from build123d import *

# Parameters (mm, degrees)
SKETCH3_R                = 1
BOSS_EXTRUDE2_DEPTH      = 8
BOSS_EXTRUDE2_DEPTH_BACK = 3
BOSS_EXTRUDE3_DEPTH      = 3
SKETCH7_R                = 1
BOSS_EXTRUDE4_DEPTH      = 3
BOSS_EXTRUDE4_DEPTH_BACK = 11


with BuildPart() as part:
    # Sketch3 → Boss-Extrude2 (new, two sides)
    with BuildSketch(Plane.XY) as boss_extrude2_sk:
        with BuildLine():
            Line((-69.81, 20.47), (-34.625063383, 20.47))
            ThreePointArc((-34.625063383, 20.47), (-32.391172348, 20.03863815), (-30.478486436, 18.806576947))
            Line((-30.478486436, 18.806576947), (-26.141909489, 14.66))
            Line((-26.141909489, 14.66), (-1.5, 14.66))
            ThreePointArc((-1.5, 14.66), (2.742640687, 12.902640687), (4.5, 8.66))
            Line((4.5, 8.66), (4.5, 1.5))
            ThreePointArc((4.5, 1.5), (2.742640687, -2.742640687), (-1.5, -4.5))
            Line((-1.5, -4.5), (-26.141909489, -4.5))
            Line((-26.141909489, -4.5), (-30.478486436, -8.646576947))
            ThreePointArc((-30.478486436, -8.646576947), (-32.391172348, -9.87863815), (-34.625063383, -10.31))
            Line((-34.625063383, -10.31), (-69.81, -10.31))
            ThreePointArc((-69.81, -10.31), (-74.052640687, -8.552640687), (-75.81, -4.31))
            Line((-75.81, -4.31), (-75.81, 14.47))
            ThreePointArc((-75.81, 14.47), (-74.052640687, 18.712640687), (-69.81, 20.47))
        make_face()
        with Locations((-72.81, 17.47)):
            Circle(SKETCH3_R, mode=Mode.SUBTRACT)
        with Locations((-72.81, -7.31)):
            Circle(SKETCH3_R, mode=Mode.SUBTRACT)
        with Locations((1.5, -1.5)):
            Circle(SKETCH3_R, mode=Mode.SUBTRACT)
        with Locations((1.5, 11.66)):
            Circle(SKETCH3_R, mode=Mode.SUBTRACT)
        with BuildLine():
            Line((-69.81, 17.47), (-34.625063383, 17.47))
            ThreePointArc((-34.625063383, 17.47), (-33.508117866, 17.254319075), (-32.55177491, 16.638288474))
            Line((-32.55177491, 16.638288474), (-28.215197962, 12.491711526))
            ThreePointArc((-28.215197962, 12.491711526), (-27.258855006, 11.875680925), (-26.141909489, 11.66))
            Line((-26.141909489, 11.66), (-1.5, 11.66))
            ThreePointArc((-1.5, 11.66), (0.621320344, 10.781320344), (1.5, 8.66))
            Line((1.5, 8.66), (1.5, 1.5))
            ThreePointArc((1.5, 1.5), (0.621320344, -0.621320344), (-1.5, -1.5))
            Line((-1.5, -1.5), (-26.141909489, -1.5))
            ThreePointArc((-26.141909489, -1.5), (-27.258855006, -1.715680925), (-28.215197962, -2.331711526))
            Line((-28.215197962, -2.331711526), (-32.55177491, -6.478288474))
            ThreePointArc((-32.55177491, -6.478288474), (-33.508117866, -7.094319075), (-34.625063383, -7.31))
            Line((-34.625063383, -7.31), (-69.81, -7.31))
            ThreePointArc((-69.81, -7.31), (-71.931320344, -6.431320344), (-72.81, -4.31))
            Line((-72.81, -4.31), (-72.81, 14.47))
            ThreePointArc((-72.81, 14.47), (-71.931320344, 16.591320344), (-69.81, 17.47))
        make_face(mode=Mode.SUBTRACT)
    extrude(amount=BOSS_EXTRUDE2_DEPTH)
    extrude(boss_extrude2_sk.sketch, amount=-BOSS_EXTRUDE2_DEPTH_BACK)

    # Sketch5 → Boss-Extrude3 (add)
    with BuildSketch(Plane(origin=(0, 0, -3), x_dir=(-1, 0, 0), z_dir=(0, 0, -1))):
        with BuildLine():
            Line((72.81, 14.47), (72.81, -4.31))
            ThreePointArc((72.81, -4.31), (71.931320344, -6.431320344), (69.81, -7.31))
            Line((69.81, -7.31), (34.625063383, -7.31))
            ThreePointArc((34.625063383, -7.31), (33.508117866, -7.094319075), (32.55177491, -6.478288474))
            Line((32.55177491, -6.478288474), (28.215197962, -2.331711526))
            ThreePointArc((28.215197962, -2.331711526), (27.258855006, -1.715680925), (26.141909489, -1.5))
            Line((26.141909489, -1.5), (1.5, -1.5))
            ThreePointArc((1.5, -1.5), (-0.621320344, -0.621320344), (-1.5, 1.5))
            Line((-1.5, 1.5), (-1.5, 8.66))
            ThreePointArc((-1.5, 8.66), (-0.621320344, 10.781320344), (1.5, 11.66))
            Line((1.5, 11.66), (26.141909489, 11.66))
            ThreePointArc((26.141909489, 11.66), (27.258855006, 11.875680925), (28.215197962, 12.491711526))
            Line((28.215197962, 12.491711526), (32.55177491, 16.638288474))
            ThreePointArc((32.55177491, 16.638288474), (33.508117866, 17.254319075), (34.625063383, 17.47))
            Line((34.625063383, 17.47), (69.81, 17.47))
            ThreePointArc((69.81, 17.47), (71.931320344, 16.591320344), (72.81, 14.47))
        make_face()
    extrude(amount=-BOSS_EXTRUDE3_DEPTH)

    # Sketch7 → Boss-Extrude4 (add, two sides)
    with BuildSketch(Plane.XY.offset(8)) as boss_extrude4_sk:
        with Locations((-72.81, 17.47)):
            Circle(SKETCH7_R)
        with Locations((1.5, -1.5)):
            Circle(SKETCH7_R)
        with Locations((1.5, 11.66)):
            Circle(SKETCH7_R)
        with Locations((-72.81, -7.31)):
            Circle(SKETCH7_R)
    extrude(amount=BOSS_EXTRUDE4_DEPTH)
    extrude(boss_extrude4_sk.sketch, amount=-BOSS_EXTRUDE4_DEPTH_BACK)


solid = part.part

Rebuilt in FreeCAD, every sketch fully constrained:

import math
import FreeCAD as App
import Part
import Sketcher
from FreeCAD import Vector

doc = App.newDocument("Part")
body = doc.addObject("PartDesign::Body", "Body")

sketch1 = doc.addObject("Sketcher::SketchObject", "Sketch")
body.addObject(sketch1)
sketch1.AttachmentSupport = (doc.XY_Plane, [""])
sketch1.MapMode = "FlatFace"
sketch1.addGeometry(Part.LineSegment(Vector(-34.6, 20.5, 0), Vector(-69.8, 20.5, 0)), False)
sketch1.addGeometry(Part.ArcOfCircle(Part.Circle(Vector(-69.8, 14.5, 0), Vector(0, 0, 1), 6), math.radians(90), math.radians(180)), False)
sketch1.addGeometry(Part.LineSegment(Vector(-75.8, 14.5, 0), Vector(-75.8, -4.3, 0)), False)
sketch1.addGeometry(Part.ArcOfCircle(Part.Circle(Vector(-69.8, -4.3, 0), Vector(0, 0, 1), 6), math.radians(180), math.radians(270)), False)
sketch1.addGeometry(Part.LineSegment(Vector(-69.8, -10.3, 0), Vector(-34.6, -10.3, 0)), False)
sketch1.addGeometry(Part.ArcOfCircle(Part.Circle(Vector(-34.6, -4.3, 0), Vector(0, 0, 1), 6), math.radians(-90), math.radians(-46)), False)
sketch1.addGeometry(Part.LineSegment(Vector(-30.5, -8.6, 0), Vector(-26.1, -4.5, 0)), False)
sketch1.addGeometry(Part.LineSegment(Vector(-26.1, -4.5, 0), Vector(-1.5, -4.5, 0)), False)
sketch1.addGeometry(Part.ArcOfCircle(Part.Circle(Vector(-1.5, 1.5, 0), Vector(0, 0, 1), 6), math.radians(-90), math.radians(0)), False)
sketch1.addGeometry(Part.LineSegment(Vector(4.5, 1.5, 0), Vector(4.5, 8.7, 0)), False)
sketch1.addGeometry(Part.ArcOfCircle(Part.Circle(Vector(-1.5, 8.7, 0), Vector(0, 0, 1), 6), math.radians(0), math.radians(90)), False)
sketch1.addGeometry(Part.LineSegment(Vector(-1.5, 14.7, 0), Vector(-26.1, 14.7, 0)), False)
sketch1.addGeometry(Part.LineSegment(Vector(-26.1, 14.7, 0), Vector(-30.5, 18.8, 0)), False)
sketch1.addGeometry(Part.ArcOfCircle(Part.Circle(Vector(-34.6, 14.5, 0), Vector(0, 0, 1), 6), math.radians(46), math.radians(90)), False)
sketch1.addGeometry(Part.Circle(Vector(1.5, -1.5, 0), Vector(0, 0, 1), 1), False)
sketch1.addGeometry(Part.Circle(Vector(-72.8, -7.3, 0), Vector(0, 0, 1), 1), False)
sketch1.addGeometry(Part.Circle(Vector(1.5, 11.7, 0), Vector(0, 0, 1), 1), False)
sketch1.addGeometry(Part.LineSegment(Vector(-69.8, 17.5, 0), Vector(-34.6, 17.5, 0)), False)
sketch1.addGeometry(Part.ArcOfCircle(Part.Circle(Vector(-34.6, 14.5, 0), Vector(0, 0, 1), 3), math.radians(46), math.radians(90)), False)
sketch1.addGeometry(Part.LineSegment(Vector(-32.6, 16.6, 0), Vector(-28.2, 12.5, 0)), False)
sketch1.addGeometry(Part.ArcOfCircle(Part.Circle(Vector(-26.1, 14.7, 0), Vector(0, 0, 1), 3), math.radians(-134), math.radians(-90)), False)
sketch1.addGeometry(Part.LineSegment(Vector(-26.1, 11.7, 0), Vector(-1.5, 11.7, 0)), False)
sketch1.addGeometry(Part.ArcOfCircle(Part.Circle(Vector(-1.5, 8.7, 0), Vector(0, 0, 1), 3), math.radians(0), math.radians(90)), False)
sketch1.addGeometry(Part.LineSegment(Vector(1.5, 8.7, 0), Vector(1.5, 1.5, 0)), False)
sketch1.addGeometry(Part.ArcOfCircle(Part.Circle(Vector(-1.5, 1.5, 0), Vector(0, 0, 1), 3), math.radians(-90), math.radians(0)), False)
sketch1.addGeometry(Part.LineSegment(Vector(-1.5, -1.5, 0), Vector(-26.1, -1.5, 0)), False)
sketch1.addGeometry(Part.ArcOfCircle(Part.Circle(Vector(-26.1, -4.5, 0), Vector(0, 0, 1), 3), math.radians(90), math.radians(134)), False)
sketch1.addGeometry(Part.LineSegment(Vector(-28.2, -2.3, 0), Vector(-32.6, -6.5, 0)), False)
sketch1.addGeometry(Part.ArcOfCircle(Part.Circle(Vector(-34.6, -4.3, 0), Vector(0, 0, 1), 3), math.radians(-90), math.radians(-46)), False)
sketch1.addGeometry(Part.LineSegment(Vector(-34.6, -7.3, 0), Vector(-69.8, -7.3, 0)), False)
sketch1.addGeometry(Part.ArcOfCircle(Part.Circle(Vector(-69.8, -4.3, 0), Vector(0, 0, 1), 3), math.radians(180), math.radians(270)), False)
sketch1.addGeometry(Part.LineSegment(Vector(-72.8, -4.3, 0), Vector(-72.8, 14.5, 0)), False)
sketch1.addGeometry(Part.ArcOfCircle(Part.Circle(Vector(-69.8, 14.5, 0), Vector(0, 0, 1), 3), math.radians(90), math.radians(180)), False)
sketch1.addGeometry(Part.Circle(Vector(-72.8, 17.5, 0), Vector(0, 0, 1), 1), False)
sketch1.addConstraint(Sketcher.Constraint("Tangent", 0, 2, 1, 1))
sketch1.addConstraint(Sketcher.Constraint("Tangent", 1, 2, 2, 1))
sketch1.addConstraint(Sketcher.Constraint("Tangent", 2, 2, 3, 1))
sketch1.addConstraint(Sketcher.Constraint("Tangent", 3, 2, 4, 1))
sketch1.addConstraint(Sketcher.Constraint("Tangent", 4, 2, 5, 1))
sketch1.addConstraint(Sketcher.Constraint("Tangent", 5, 2, 6, 1))
sketch1.addConstraint(Sketcher.Constraint("Coincident", 6, 2, 7, 1))
sketch1.addConstraint(Sketcher.Constraint("Tangent", 7, 2, 8, 1))
sketch1.addConstraint(Sketcher.Constraint("Tangent", 8, 2, 9, 1))
sketch1.addConstraint(Sketcher.Constraint("Tangent", 9, 2, 10, 1))
sketch1.addConstraint(Sketcher.Constraint("Tangent", 10, 2, 11, 1))
sketch1.addConstraint(Sketcher.Constraint("Coincident", 11, 2, 12, 1))
sketch1.addConstraint(Sketcher.Constraint("Tangent", 12, 2, 13, 1))
sketch1.addConstraint(Sketcher.Constraint("Tangent", 13, 2, 0, 1))
sketch1.addConstraint(Sketcher.Constraint("Tangent", 17, 2, 18, 2))
sketch1.addConstraint(Sketcher.Constraint("Tangent", 18, 1, 19, 1))
sketch1.addConstraint(Sketcher.Constraint("Tangent", 19, 2, 20, 1))
sketch1.addConstraint(Sketcher.Constraint("Tangent", 20, 2, 21, 1))
sketch1.addConstraint(Sketcher.Constraint("Tangent", 21, 2, 22, 2))
sketch1.addConstraint(Sketcher.Constraint("Tangent", 22, 1, 23, 1))
sketch1.addConstraint(Sketcher.Constraint("Tangent", 23, 2, 24, 2))
sketch1.addConstraint(Sketcher.Constraint("Tangent", 24, 1, 25, 1))
sketch1.addConstraint(Sketcher.Constraint("Tangent", 25, 2, 26, 1))
sketch1.addConstraint(Sketcher.Constraint("Tangent", 26, 2, 27, 1))
sketch1.addConstraint(Sketcher.Constraint("Tangent", 27, 2, 28, 2))
sketch1.addConstraint(Sketcher.Constraint("Tangent", 28, 1, 29, 1))
sketch1.addConstraint(Sketcher.Constraint("Tangent", 29, 2, 30, 2))
sketch1.addConstraint(Sketcher.Constraint("Tangent", 30, 1, 31, 1))
sketch1.addConstraint(Sketcher.Constraint("Tangent", 31, 2, 32, 2))
sketch1.addConstraint(Sketcher.Constraint("Tangent", 32, 1, 17, 1))
sketch1.addConstraint(Sketcher.Constraint("Horizontal", 0))
sketch1.addConstraint(Sketcher.Constraint("Vertical", 2))
sketch1.addConstraint(Sketcher.Constraint("Horizontal", 4))
sketch1.addConstraint(Sketcher.Constraint("Horizontal", 7))
sketch1.addConstraint(Sketcher.Constraint("Vertical", 9))
sketch1.addConstraint(Sketcher.Constraint("Horizontal", 11))
sketch1.addConstraint(Sketcher.Constraint("Horizontal", 17))
sketch1.addConstraint(Sketcher.Constraint("Horizontal", 21))
sketch1.addConstraint(Sketcher.Constraint("Vertical", 23))
sketch1.addConstraint(Sketcher.Constraint("Horizontal", 25))
sketch1.addConstraint(Sketcher.Constraint("Horizontal", 29))
sketch1.addConstraint(Sketcher.Constraint("Vertical", 31))
sketch1.addConstraint(Sketcher.Constraint("Coincident", 18, 3, 13, 3))
sketch1.addConstraint(Sketcher.Constraint("Coincident", 22, 3, 10, 3))
sketch1.addConstraint(Sketcher.Constraint("Coincident", 24, 3, 8, 3))
sketch1.addConstraint(Sketcher.Constraint("Coincident", 28, 3, 5, 3))
sketch1.addConstraint(Sketcher.Constraint("Coincident", 30, 3, 3, 3))
sketch1.addConstraint(Sketcher.Constraint("Coincident", 32, 3, 1, 3))
sketch1.addConstraint(Sketcher.Constraint("Coincident", 6, 2, 26, 3))
sketch1.addConstraint(Sketcher.Constraint("Coincident", 11, 2, 20, 3))
sketch1.addConstraint(Sketcher.Constraint("Equal", 1, 3))
sketch1.addConstraint(Sketcher.Constraint("Equal", 3, 5))
sketch1.addConstraint(Sketcher.Constraint("Equal", 5, 8))
sketch1.addConstraint(Sketcher.Constraint("Equal", 8, 10))
sketch1.addConstraint(Sketcher.Constraint("Equal", 10, 13))
sketch1.addConstraint(Sketcher.Constraint("Equal", 14, 15))
sketch1.addConstraint(Sketcher.Constraint("Equal", 15, 16))
sketch1.addConstraint(Sketcher.Constraint("Equal", 18, 20))
sketch1.addConstraint(Sketcher.Constraint("Equal", 20, 22))
sketch1.addConstraint(Sketcher.Constraint("Equal", 16, 33))
sketch1.addConstraint(Sketcher.Constraint("Symmetric", 8, 3, 14, 3, -1, 1))
sketch1.addConstraint(Sketcher.Constraint("Symmetric", 23, 2, 24, 1, -1, 1))
sketch1.addConstraint(Sketcher.Constraint("Horizontal", 33, 3, 17, 2))
sketch1.addConstraint(Sketcher.Constraint("Horizontal", 16, 3, 20, 2))
sketch1.addConstraint(Sketcher.Constraint("Horizontal", 15, 3, 28, 1))
sketch1.addConstraint(Sketcher.Constraint("Vertical", 5, 3, 13, 3))
sketch1.addConstraint(Sketcher.Constraint("Vertical", 14, 3, 16, 3))
sketch1.addConstraint(Sketcher.Constraint("Vertical", 20, 3, 26, 3))
sketch1.addConstraint(Sketcher.Constraint("Vertical", 15, 3, 33, 3))
sketch1.addConstraint(Sketcher.Constraint("Vertical", 5, 2, 12, 2))
sketch1.addConstraint(Sketcher.Constraint("Vertical", 33, 3, 30, 1))
sketch1.addConstraint(Sketcher.Constraint("Diameter", 14, 2.0))
sketch1.addConstraint(Sketcher.Constraint("Radius", 1, 6.0))
sketch1.addConstraint(Sketcher.Constraint("Distance", 6, 6.0))
sketch1.addConstraint(Sketcher.Constraint("DistanceY", 2, 2, 2, 1, 18.78))
sketch1.addConstraint(Sketcher.Constraint("DistanceY", 9, 1, 9, 2, 7.16))
sketch1.addConstraint(Sketcher.Constraint("DistanceX", 1, 3, -1, 1, 69.81))
sketch1.addConstraint(Sketcher.Constraint("DistanceX", 7, 1, 7, 2, 24.641909))
pad1 = doc.addObject("PartDesign::Pad", "Pad")
body.addObject(pad1)
pad1.Profile = sketch1
pad1.Type = "TwoLengths"
pad1.Length = 8
pad1.Length2 = 3

sketch2 = doc.addObject("Sketcher::SketchObject", "Sketch001")
body.addObject(sketch2)
sketch2.AttachmentSupport = (doc.XY_Plane, [""])
sketch2.MapMode = "FlatFace"
sketch2.AttachmentOffset = App.Placement(Vector(0, 0, -3), App.Rotation())
sketch2.addGeometry(Part.LineSegment(Vector(-72.8, -4.3, 0), Vector(-72.8, 14.5, 0)), False)
sketch2.addGeometry(Part.ArcOfCircle(Part.Circle(Vector(-69.8, 14.5, 0), Vector(0, 0, 1), 3), math.radians(90), math.radians(180)), False)
sketch2.addGeometry(Part.LineSegment(Vector(-69.8, 17.5, 0), Vector(-34.6, 17.5, 0)), False)
sketch2.addGeometry(Part.ArcOfCircle(Part.Circle(Vector(-34.6, 14.5, 0), Vector(0, 0, 1), 3), math.radians(46), math.radians(90)), False)
sketch2.addGeometry(Part.LineSegment(Vector(-32.6, 16.6, 0), Vector(-28.2, 12.5, 0)), False)
sketch2.addGeometry(Part.ArcOfCircle(Part.Circle(Vector(-26.1, 14.7, 0), Vector(0, 0, 1), 3), math.radians(-134), math.radians(-90)), False)
sketch2.addGeometry(Part.LineSegment(Vector(-26.1, 11.7, 0), Vector(-1.5, 11.7, 0)), False)
sketch2.addGeometry(Part.ArcOfCircle(Part.Circle(Vector(-1.5, 8.7, 0), Vector(0, 0, 1), 3), math.radians(0), math.radians(90)), False)
sketch2.addGeometry(Part.LineSegment(Vector(1.5, 8.7, 0), Vector(1.5, 1.5, 0)), False)
sketch2.addGeometry(Part.ArcOfCircle(Part.Circle(Vector(-1.5, 1.5, 0), Vector(0, 0, 1), 3), math.radians(-90), math.radians(0)), False)
sketch2.addGeometry(Part.LineSegment(Vector(-1.5, -1.5, 0), Vector(-26.1, -1.5, 0)), False)
sketch2.addGeometry(Part.ArcOfCircle(Part.Circle(Vector(-26.1, -4.5, 0), Vector(0, 0, 1), 3), math.radians(90), math.radians(134)), False)
sketch2.addGeometry(Part.LineSegment(Vector(-28.2, -2.3, 0), Vector(-32.6, -6.5, 0)), False)
sketch2.addGeometry(Part.ArcOfCircle(Part.Circle(Vector(-34.6, -4.3, 0), Vector(0, 0, 1), 3), math.radians(-90), math.radians(-46)), False)
sketch2.addGeometry(Part.LineSegment(Vector(-34.6, -7.3, 0), Vector(-69.8, -7.3, 0)), False)
sketch2.addGeometry(Part.ArcOfCircle(Part.Circle(Vector(-69.8, -4.3, 0), Vector(0, 0, 1), 3), math.radians(180), math.radians(270)), False)
sketch2.addConstraint(Sketcher.Constraint("Tangent", 0, 2, 1, 2))
sketch2.addConstraint(Sketcher.Constraint("Tangent", 1, 1, 2, 1))
sketch2.addConstraint(Sketcher.Constraint("Tangent", 2, 2, 3, 2))
sketch2.addConstraint(Sketcher.Constraint("Tangent", 3, 1, 4, 1))
sketch2.addConstraint(Sketcher.Constraint("Tangent", 4, 2, 5, 1))
sketch2.addConstraint(Sketcher.Constraint("Tangent", 5, 2, 6, 1))
sketch2.addConstraint(Sketcher.Constraint("Tangent", 6, 2, 7, 2))
sketch2.addConstraint(Sketcher.Constraint("Tangent", 7, 1, 8, 1))
sketch2.addConstraint(Sketcher.Constraint("Tangent", 8, 2, 9, 2))
sketch2.addConstraint(Sketcher.Constraint("Tangent", 9, 1, 10, 1))
sketch2.addConstraint(Sketcher.Constraint("Tangent", 10, 2, 11, 1))
sketch2.addConstraint(Sketcher.Constraint("Tangent", 11, 2, 12, 1))
sketch2.addConstraint(Sketcher.Constraint("Tangent", 12, 2, 13, 2))
sketch2.addConstraint(Sketcher.Constraint("Tangent", 13, 1, 14, 1))
sketch2.addConstraint(Sketcher.Constraint("Tangent", 14, 2, 15, 2))
sketch2.addConstraint(Sketcher.Constraint("Tangent", 15, 1, 0, 1))
sketch2.addConstraint(Sketcher.Constraint("Vertical", 0))
sketch2.addConstraint(Sketcher.Constraint("Horizontal", 2))
sketch2.addConstraint(Sketcher.Constraint("Horizontal", 6))
sketch2.addConstraint(Sketcher.Constraint("Vertical", 8))
sketch2.addConstraint(Sketcher.Constraint("Horizontal", 10))
sketch2.addConstraint(Sketcher.Constraint("Horizontal", 14))
sketch2.addConstraint(Sketcher.Constraint("Equal", 1, 3))
sketch2.addConstraint(Sketcher.Constraint("Equal", 3, 5))
sketch2.addConstraint(Sketcher.Constraint("Equal", 5, 7))
sketch2.addConstraint(Sketcher.Constraint("Equal", 7, 9))
sketch2.addConstraint(Sketcher.Constraint("Equal", 9, 11))
sketch2.addConstraint(Sketcher.Constraint("Equal", 11, 13))
sketch2.addConstraint(Sketcher.Constraint("Equal", 13, 15))
sketch2.addConstraint(Sketcher.Constraint("Symmetric", 8, 2, 9, 1, -1, 1))
sketch2.addConstraint(Sketcher.Constraint("Vertical", 5, 3, 11, 3))
sketch2.addConstraint(Sketcher.Constraint("Vertical", 3, 3, 13, 3))
sketch2.addConstraint(Sketcher.Constraint("Vertical", 4, 2, 11, 2))
sketch2.addConstraint(Sketcher.Constraint("Radius", 1, 3.0))
sketch2.addConstraint(Sketcher.Constraint("Distance", 4, 6.0))
sketch2.addConstraint(Sketcher.Constraint("DistanceY", 0, 1, 0, 2, 18.78))
sketch2.addConstraint(Sketcher.Constraint("DistanceY", 8, 2, 8, 1, 7.16))
sketch2.addConstraint(Sketcher.Constraint("DistanceX", 1, 3, -1, 1, 69.81))
sketch2.addConstraint(Sketcher.Constraint("DistanceX", 6, 1, 6, 2, 24.641909))
pad2 = doc.addObject("PartDesign::Pad", "Pad001")
body.addObject(pad2)
pad2.Profile = sketch2
pad2.Length = 3

sketch3 = doc.addObject("Sketcher::SketchObject", "Sketch002")
body.addObject(sketch3)
sketch3.AttachmentSupport = (doc.XY_Plane, [""])
sketch3.MapMode = "FlatFace"
sketch3.AttachmentOffset = App.Placement(Vector(0, 0, 8), App.Rotation())
sketch3.addGeometry(Part.Circle(Vector(-72.8, 17.5, 0), Vector(0, 0, 1), 1), False)
sketch3.addGeometry(Part.Circle(Vector(1.5, -1.5, 0), Vector(0, 0, 1), 1), False)
sketch3.addGeometry(Part.Circle(Vector(1.5, 11.7, 0), Vector(0, 0, 1), 1), False)
sketch3.addGeometry(Part.Circle(Vector(-72.8, -7.3, 0), Vector(0, 0, 1), 1), False)
sketch3.addConstraint(Sketcher.Constraint("Equal", 0, 1))
sketch3.addConstraint(Sketcher.Constraint("Equal", 1, 2))
sketch3.addConstraint(Sketcher.Constraint("Equal", 2, 3))
sketch3.addConstraint(Sketcher.Constraint("Vertical", 1, 3, 2, 3))
sketch3.addConstraint(Sketcher.Constraint("Vertical", 0, 3, 3, 3))
sketch3.addConstraint(Sketcher.Constraint("Diameter", 0, 2.0))
sketch3.addConstraint(Sketcher.Constraint("DistanceX", -1, 1, 1, 3, 1.5))
sketch3.addConstraint(Sketcher.Constraint("DistanceY", 1, 3, -1, 1, 1.5))
sketch3.addConstraint(Sketcher.Constraint("DistanceX", 0, 3, -1, 1, 72.81))
sketch3.addConstraint(Sketcher.Constraint("DistanceY", -1, 1, 0, 3, 17.47))
sketch3.addConstraint(Sketcher.Constraint("DistanceY", -1, 1, 2, 3, 11.66))
sketch3.addConstraint(Sketcher.Constraint("DistanceY", 3, 3, -1, 1, 7.31))
pad3 = doc.addObject("PartDesign::Pad", "Pad002")
body.addObject(pad3)
pad3.Profile = sketch3
pad3.Type = "TwoLengths"
pad3.Length = 3
pad3.Length2 = 11

doc.recompute()
